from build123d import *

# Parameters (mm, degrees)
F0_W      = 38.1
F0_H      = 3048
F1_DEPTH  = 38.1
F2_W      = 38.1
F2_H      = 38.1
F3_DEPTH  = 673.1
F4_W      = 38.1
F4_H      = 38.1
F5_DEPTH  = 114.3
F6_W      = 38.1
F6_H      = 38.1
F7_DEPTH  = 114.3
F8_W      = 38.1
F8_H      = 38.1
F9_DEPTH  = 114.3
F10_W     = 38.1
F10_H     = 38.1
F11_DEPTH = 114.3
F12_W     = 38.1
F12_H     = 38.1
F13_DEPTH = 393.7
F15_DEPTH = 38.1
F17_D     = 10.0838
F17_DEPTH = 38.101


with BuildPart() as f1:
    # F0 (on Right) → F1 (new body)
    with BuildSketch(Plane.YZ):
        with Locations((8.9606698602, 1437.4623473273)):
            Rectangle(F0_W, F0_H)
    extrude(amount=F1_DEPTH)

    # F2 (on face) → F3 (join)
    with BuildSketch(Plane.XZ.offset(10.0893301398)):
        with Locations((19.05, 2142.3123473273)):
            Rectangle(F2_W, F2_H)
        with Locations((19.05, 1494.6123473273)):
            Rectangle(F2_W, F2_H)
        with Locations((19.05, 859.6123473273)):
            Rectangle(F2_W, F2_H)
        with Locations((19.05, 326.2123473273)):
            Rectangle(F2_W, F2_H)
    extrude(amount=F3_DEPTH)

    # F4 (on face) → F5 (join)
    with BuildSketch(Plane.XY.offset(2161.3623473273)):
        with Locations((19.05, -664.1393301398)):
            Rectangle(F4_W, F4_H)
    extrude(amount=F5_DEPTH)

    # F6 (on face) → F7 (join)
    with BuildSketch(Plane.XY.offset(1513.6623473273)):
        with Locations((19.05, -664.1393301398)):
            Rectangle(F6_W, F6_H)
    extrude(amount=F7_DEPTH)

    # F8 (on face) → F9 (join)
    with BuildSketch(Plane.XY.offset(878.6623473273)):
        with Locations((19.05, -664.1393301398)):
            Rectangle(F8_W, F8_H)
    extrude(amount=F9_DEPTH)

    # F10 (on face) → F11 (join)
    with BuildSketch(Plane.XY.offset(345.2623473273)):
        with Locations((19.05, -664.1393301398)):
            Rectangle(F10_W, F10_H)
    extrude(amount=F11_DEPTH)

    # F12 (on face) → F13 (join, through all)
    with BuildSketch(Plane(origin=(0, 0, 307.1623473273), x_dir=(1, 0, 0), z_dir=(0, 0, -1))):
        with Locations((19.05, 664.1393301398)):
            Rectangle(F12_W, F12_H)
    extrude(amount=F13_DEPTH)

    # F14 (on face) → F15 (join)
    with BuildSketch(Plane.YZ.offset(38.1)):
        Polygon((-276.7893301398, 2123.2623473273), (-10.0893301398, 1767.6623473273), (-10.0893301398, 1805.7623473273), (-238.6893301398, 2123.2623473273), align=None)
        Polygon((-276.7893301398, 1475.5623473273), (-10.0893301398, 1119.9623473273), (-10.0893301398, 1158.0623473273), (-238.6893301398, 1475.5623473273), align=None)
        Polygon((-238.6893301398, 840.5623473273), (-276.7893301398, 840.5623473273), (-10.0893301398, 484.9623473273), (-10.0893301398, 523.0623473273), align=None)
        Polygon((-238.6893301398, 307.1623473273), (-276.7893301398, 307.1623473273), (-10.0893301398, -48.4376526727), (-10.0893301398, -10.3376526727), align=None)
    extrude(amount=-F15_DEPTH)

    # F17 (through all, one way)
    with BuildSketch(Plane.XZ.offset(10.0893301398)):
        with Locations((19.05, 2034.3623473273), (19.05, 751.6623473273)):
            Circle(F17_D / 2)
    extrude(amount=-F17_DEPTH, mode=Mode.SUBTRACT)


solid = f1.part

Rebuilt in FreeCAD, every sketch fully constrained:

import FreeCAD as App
import Part
import Sketcher
from FreeCAD import Vector
Q = App.Units.Quantity

doc = App.newDocument("Part")
body = doc.addObject("PartDesign::Body", "Body")

# Sketch on YZ plane
sketch1 = body.newObject("Sketcher::SketchObject", "Sketch")
sketch1.AttachmentSupport = (doc.getObject("YZ_Plane"), [""])
sketch1.MapMode = "FlatFace"
sketch1.addGeometry([
    Part.LineSegment(Vector(-10.08933, 2961.462347, 0), Vector(-10.08933, -86.537653, 0)),
    Part.LineSegment(Vector(-10.08933, -86.537653, 0), Vector(28.01067, -86.537653, 0)),
    Part.LineSegment(Vector(28.01067, -86.537653, 0), Vector(28.01067, 2961.462347, 0)),
    Part.LineSegment(Vector(28.01067, 2961.462347, 0), Vector(-10.08933, 2961.462347, 0)),
], False)
sketch1.addConstraint([
    Sketcher.Constraint("Coincident", 0, 2, 1, 1),
    Sketcher.Constraint("Coincident", 1, 2, 2, 1),
    Sketcher.Constraint("Coincident", 2, 2, 3, 1),
    Sketcher.Constraint("Coincident", 3, 2, 0, 1),
    Sketcher.Constraint("Vertical", 0),
    Sketcher.Constraint("Horizontal", 1),
    Sketcher.Constraint("Vertical", 2),
    Sketcher.Constraint("Horizontal", 3),
    Sketcher.Constraint("DistanceY", 0, 2, 0, 1, Q("120 in")),
    Sketcher.Constraint("DistanceX", 1, 1, 1, 2, Q("1.5 in")),
    Sketcher.Constraint("DistanceX", 0, 2, -1, 1, 10.08933),
    Sketcher.Constraint("DistanceY", 0, 2, -1, 1, 86.537653),
])
pad1 = body.newObject("PartDesign::Pad", "Pad")
pad1.Profile = sketch1
pad1.Length = Q("1.5 in")

# Sketch on XZ plane
sketch2 = body.newObject("Sketcher::SketchObject", "Sketch001")
sketch2.AttachmentSupport = (doc.getObject("XZ_Plane"), [""])
sketch2.MapMode = "FlatFace"
sketch2.AttachmentOffset = App.Placement(Vector(0, 0, 10.08933), App.Rotation())
sketch2.addGeometry([
    Part.LineSegment(Vector(0, 2161.362347, 0), Vector(0, 2123.262347, 0)),  # 0
    Part.LineSegment(Vector(0, 2123.262347, 0), Vector(38.1, 2123.262347, 0)),  # 1
    Part.LineSegment(Vector(38.1, 2123.262347, 0), Vector(38.1, 2161.362347, 0)),  # 2
    Part.LineSegment(Vector(38.1, 2161.362347, 0), Vector(0, 2161.362347, 0)),  # 3
    Part.LineSegment(Vector(0, 1513.662347, 0), Vector(0, 1475.562347, 0)),  # 4
    Part.LineSegment(Vector(0, 1475.562347, 0), Vector(38.1, 1475.562347, 0)),  # 5
    Part.LineSegment(Vector(38.1, 1475.562347, 0), Vector(38.1, 1513.662347, 0)),  # 6
    Part.LineSegment(Vector(38.1, 1513.662347, 0), Vector(0, 1513.662347, 0)),  # 7
    Part.LineSegment(Vector(0, 878.662347, 0), Vector(0, 840.562347, 0)),  # 8
    Part.LineSegment(Vector(0, 840.562347, 0), Vector(38.1, 840.562347, 0)),  # 9
    Part.LineSegment(Vector(38.1, 840.562347, 0), Vector(38.1, 878.662347, 0)),  # 10
    Part.LineSegment(Vector(38.1, 878.662347, 0), Vector(0, 878.662347, 0)),  # 11
    Part.LineSegment(Vector(0, 345.262347, 0), Vector(0, 307.162347, 0)),  # 12
    Part.LineSegment(Vector(0, 307.162347, 0), Vector(38.1, 307.162347, 0)),  # 13
    Part.LineSegment(Vector(38.1, 307.162347, 0), Vector(38.1, 345.262347, 0)),  # 14
    Part.LineSegment(Vector(38.1, 345.262347, 0), Vector(0, 345.262347, 0)),  # 15
], False)
sketch2.addConstraint([
    Sketcher.Constraint("Coincident", 0, 2, 1, 1),
    Sketcher.Constraint("Coincident", 1, 2, 2, 1),
    Sketcher.Constraint("Coincident", 2, 2, 3, 1),
    Sketcher.Constraint("Coincident", 3, 2, 0, 1),
    Sketcher.Constraint("Coincident", 4, 2, 5, 1),
    Sketcher.Constraint("Coincident", 5, 2, 6, 1),
    Sketcher.Constraint("Coincident", 6, 2, 7, 1),
    Sketcher.Constraint("Coincident", 7, 2, 4, 1),
    Sketcher.Constraint("Coincident", 8, 2, 9, 1),
    Sketcher.Constraint("Coincident", 9, 2, 10, 1),
    Sketcher.Constraint("Coincident", 10, 2, 11, 1),
    Sketcher.Constraint("Coincident", 11, 2, 8, 1),
    Sketcher.Constraint("Coincident", 12, 2, 13, 1),
    Sketcher.Constraint("Coincident", 13, 2, 14, 1),
    Sketcher.Constraint("Coincident", 14, 2, 15, 1),
    Sketcher.Constraint("Coincident", 15, 2, 12, 1),
    Sketcher.Constraint("Vertical", 0),
    Sketcher.Constraint("Horizontal", 1),
    Sketcher.Constraint("Vertical", 2),
    Sketcher.Constraint("Horizontal", 3),
    Sketcher.Constraint("Vertical", 4),
    Sketcher.Constraint("Horizontal", 5),
    Sketcher.Constraint("Vertical", 6),
    Sketcher.Constraint("Horizontal", 7),
    Sketcher.Constraint("Vertical", 8),
    Sketcher.Constraint("Horizontal", 9),
    Sketcher.Constraint("Vertical", 10),
    Sketcher.Constraint("Horizontal", 11),
    Sketcher.Constraint("Vertical", 12),
    Sketcher.Constraint("Horizontal", 13),
    Sketcher.Constraint("Vertical", 14),
    Sketcher.Constraint("Horizontal", 15),
    Sketcher.Constraint("PointOnObject", 0, 2, -2),
    Sketcher.Constraint("PointOnObject", 4, 2, -2),
    Sketcher.Constraint("PointOnObject", 8, 2, -2),
    Sketcher.Constraint("PointOnObject", 12, 2, -2),
    Sketcher.Constraint("Vertical", 2, 2, 5, 2),
    Sketcher.Constraint("Vertical", 6, 2, 9, 2),
    Sketcher.Constraint("Vertical", 10, 2, 13, 2),
    Sketcher.Constraint("Equal", 15, 0),
    Sketcher.Constraint("Equal", 2, 4),
    Sketcher.Constraint("Equal", 6, 8),
    Sketcher.Constraint("Equal", 10, 12),
    Sketcher.Constraint("DistanceX", 1, 1, 1, 2, Q("1.5 in")),
    Sketcher.Constraint("DistanceY", 4, 2, 3, 2, Q("27 in")),
    Sketcher.Constraint("DistanceY", 8, 2, 4, 2, Q("25 in")),
    Sketcher.Constraint("DistanceY", 12, 2, 8, 2, Q("21 in")),
    Sketcher.Constraint("DistanceY", -1, 1, 0, 2, 2123.262347),
])
pad2 = body.newObject("PartDesign::Pad", "Pad001")
pad2.Profile = sketch2
pad2.Length = Q("26.5 in")

# Sketch on XY plane
sketch3 = body.newObject("Sketcher::SketchObject", "Sketch002")
sketch3.AttachmentSupport = (doc.getObject("XY_Plane"), [""])
sketch3.MapMode = "FlatFace"
sketch3.AttachmentOffset = App.Placement(Vector(0, 0, 2161.362347), App.Rotation())
sketch3.addGeometry([
    Part.LineSegment(Vector(0, -645.08933, 0), Vector(0, -683.18933, 0)),
    Part.LineSegment(Vector(0, -683.18933, 0), Vector(38.1, -683.18933, 0)),
    Part.LineSegment(Vector(38.1, -683.18933, 0), Vector(38.1, -645.08933, 0)),
    Part.LineSegment(Vector(38.1, -645.08933, 0), Vector(0, -645.08933, 0)),
], False)
sketch3.addConstraint([
    Sketcher.Constraint("Coincident", 0, 2, 1, 1),
    Sketcher.Constraint("Coincident", 1, 2, 2, 1),
    Sketcher.Constraint("Coincident", 2, 2, 3, 1),
    Sketcher.Constraint("Coincident", 3, 2, 0, 1),
    Sketcher.Constraint("Vertical", 0),
    Sketcher.Constraint("Horizontal", 1),
    Sketcher.Constraint("Vertical", 2),
    Sketcher.Constraint("Horizontal", 3),
    Sketcher.Constraint("PointOnObject", 0, 2, -2),
    Sketcher.Constraint("Equal", 3, 0),
    Sketcher.Constraint("DistanceX", 1, 1, 1, 2, Q("1.5 in")),
    Sketcher.Constraint("DistanceY", 0, 2, -1, 1, 683.18933),
])
pad3 = body.newObject("PartDesign::Pad", "Pad002")
pad3.Profile = sketch3
pad3.Length = Q("4.5 in")

# Sketch on XY plane
sketch4 = body.newObject("Sketcher::SketchObject", "Sketch003")
sketch4.AttachmentSupport = (doc.getObject("XY_Plane"), [""])
sketch4.MapMode = "FlatFace"
sketch4.AttachmentOffset = App.Placement(Vector(0, 0, 1513.662347), App.Rotation())
sketch4.addGeometry([
    Part.LineSegment(Vector(0, -645.08933, 0), Vector(0, -683.18933, 0)),
    Part.LineSegment(Vector(0, -683.18933, 0), Vector(38.1, -683.18933, 0)),
    Part.LineSegment(Vector(38.1, -683.18933, 0), Vector(38.1, -645.08933, 0)),
    Part.LineSegment(Vector(38.1, -645.08933, 0), Vector(0, -645.08933, 0)),
], False)
sketch4.addConstraint([
    Sketcher.Constraint("Coincident", 0, 2, 1, 1),
    Sketcher.Constraint("Coincident", 1, 2, 2, 1),
    Sketcher.Constraint("Coincident", 2, 2, 3, 1),
    Sketcher.Constraint("Coincident", 3, 2, 0, 1),
    Sketcher.Constraint("Vertical", 0),
    Sketcher.Constraint("Horizontal", 1),
    Sketcher.Constraint("Vertical", 2),
    Sketcher.Constraint("Horizontal", 3),
    Sketcher.Constraint("PointOnObject", 0, 2, -2),
    Sketcher.Constraint("Equal", 3, 0),
    Sketcher.Constraint("DistanceX", 1, 1, 1, 2, Q("1.5 in")),
    Sketcher.Constraint("DistanceY", 0, 2, -1, 1, 683.18933),
])
pad4 = body.newObject("PartDesign::Pad", "Pad003")
pad4.Profile = sketch4
pad4.Length = Q("4.5 in")

# Sketch on XY plane
sketch5 = body.newObject("Sketcher::SketchObject", "Sketch004")
sketch5.AttachmentSupport = (doc.getObject("XY_Plane"), [""])
sketch5.MapMode = "FlatFace"
sketch5.AttachmentOffset = App.Placement(Vector(0, 0, 878.662347), App.Rotation())
sketch5.addGeometry([
    Part.LineSegment(Vector(0, -645.08933, 0), Vector(0, -683.18933, 0)),
    Part.LineSegment(Vector(0, -683.18933, 0), Vector(38.1, -683.18933, 0)),
    Part.LineSegment(Vector(38.1, -683.18933, 0), Vector(38.1, -645.08933, 0)),
    Part.LineSegment(Vector(38.1, -645.08933, 0), Vector(0, -645.08933, 0)),
], False)
sketch5.addConstraint([
    Sketcher.Constraint("Coincident", 0, 2, 1, 1),
    Sketcher.Constraint("Coincident", 1, 2, 2, 1),
    Sketcher.Constraint("Coincident", 2, 2, 3, 1),
    Sketcher.Constraint("Coincident", 3, 2, 0, 1),
    Sketcher.Constraint("Vertical", 0),
    Sketcher.Constraint("Horizontal", 1),
    Sketcher.Constraint("Vertical", 2),
    Sketcher.Constraint("Horizontal", 3),
    Sketcher.Constraint("PointOnObject", 0, 2, -2),
    Sketcher.Constraint("Equal", 3, 0),
    Sketcher.Constraint("DistanceX", 1, 1, 1, 2, Q("1.5 in")),
    Sketcher.Constraint("DistanceY", 0, 2, -1, 1, 683.18933),
])
pad5 = body.newObject("PartDesign::Pad", "Pad004")
pad5.Profile = sketch5
pad5.Length = Q("4.5 in")

# Sketch on XY plane
sketch6 = body.newObject("Sketcher::SketchObject", "Sketch005")
sketch6.AttachmentSupport = (doc.getObject("XY_Plane"), [""])
sketch6.MapMode = "FlatFace"
sketch6.AttachmentOffset = App.Placement(Vector(0, 0, 345.262347), App.Rotation())
sketch6.addGeometry([
    Part.LineSegment(Vector(0, -645.08933, 0), Vector(0, -683.18933, 0)),
    Part.LineSegment(Vector(0, -683.18933, 0), Vector(38.1, -683.18933, 0)),
    Part.LineSegment(Vector(38.1, -683.18933, 0), Vector(38.1, -645.08933, 0)),
    Part.LineSegment(Vector(38.1, -645.08933, 0), Vector(0, -645.08933, 0)),
], False)
sketch6.addConstraint([
    Sketcher.Constraint("Coincident", 0, 2, 1, 1),
    Sketcher.Constraint("Coincident", 1, 2, 2, 1),
    Sketcher.Constraint("Coincident", 2, 2, 3, 1),
    Sketcher.Constraint("Coincident", 3, 2, 0, 1),
    Sketcher.Constraint("Vertical", 0),
    Sketcher.Constraint("Horizontal", 1),
    Sketcher.Constraint("Vertical", 2),
    Sketcher.Constraint("Horizontal", 3),
    Sketcher.Constraint("PointOnObject", 0, 2, -2),
    Sketcher.Constraint("Equal", 3, 0),
    Sketcher.Constraint("DistanceX", 1, 1, 1, 2, Q("1.5 in")),
    Sketcher.Constraint("DistanceY", 0, 2, -1, 1, 683.18933),
])
pad6 = body.newObject("PartDesign::Pad", "Pad005")
pad6.Profile = sketch6
pad6.Length = Q("4.5 in")

# Sketch on XY plane
sketch7 = body.newObject("Sketcher::SketchObject", "Sketch006")
sketch7.AttachmentSupport = (doc.getObject("XY_Plane"), [""])
sketch7.MapMode = "FlatFace"
sketch7.AttachmentOffset = App.Placement(Vector(0, 0, 307.162347), App.Rotation())
sketch7.addGeometry([
    Part.LineSegment(Vector(0, -683.18933, 0), Vector(0, -645.08933, 0)),
    Part.LineSegment(Vector(0, -645.08933, 0), Vector(38.1, -645.08933, 0)),
    Part.LineSegment(Vector(38.1, -645.08933, 0), Vector(38.1, -683.18933, 0)),
    Part.LineSegment(Vector(38.1, -683.18933, 0), Vector(0, -683.18933, 0)),
], False)
sketch7.addConstraint([
    Sketcher.Constraint("Coincident", 0, 2, 1, 1),
    Sketcher.Constraint("Coincident", 1, 2, 2, 1),
    Sketcher.Constraint("Coincident", 2, 2, 3, 1),
    Sketcher.Constraint("Coincident", 3, 2, 0, 1),
    Sketcher.Constraint("Vertical", 0),
    Sketcher.Constraint("Horizontal", 1),
    Sketcher.Constraint("Vertical", 2),
    Sketcher.Constraint("Horizontal", 3),
    Sketcher.Constraint("PointOnObject", 0, 2, -2),
    Sketcher.Constraint("Equal", 3, 0),
    Sketcher.Constraint("DistanceX", 1, 1, 1, 2, Q("1.5 in")),
    Sketcher.Constraint("DistanceY", 0, 2, -1, 1, 645.08933),
])
pad7 = body.newObject("PartDesign::Pad", "Pad006")
pad7.Profile = sketch7
pad7.Length = Q("15.5 in")
pad7.Reversed = True

# Sketch on YZ plane
sketch8 = body.newObject("Sketcher::SketchObject", "Sketch007")
sketch8.AttachmentSupport = (doc.getObject("YZ_Plane"), [""])
sketch8.MapMode = "FlatFace"
sketch8.AttachmentOffset = App.Placement(Vector(0, 0, 1.5 * 25.4), App.Rotation())
sketch8.addGeometry([
    Part.LineSegment(Vector(-276.78933, 2123.262347, 0), Vector(-10.08933, 1767.662347, 0)),  # 0
    Part.LineSegment(Vector(-10.08933, 1767.662347, 0), Vector(-10.08933, 1805.762347, 0)),  # 1
    Part.LineSegment(Vector(-10.08933, 1805.762347, 0), Vector(-238.68933, 2123.262347, 0)),  # 2
    Part.LineSegment(Vector(-238.68933, 2123.262347, 0), Vector(-276.78933, 2123.262347, 0)),  # 3
    Part.LineSegment(Vector(-276.78933, 1475.562347, 0), Vector(-10.08933, 1119.962347, 0)),  # 4
    Part.LineSegment(Vector(-10.08933, 1119.962347, 0), Vector(-10.08933, 1158.062347, 0)),  # 5
    Part.LineSegment(Vector(-10.08933, 1158.062347, 0), Vector(-238.68933, 1475.562347, 0)),  # 6
    Part.LineSegment(Vector(-238.68933, 1475.562347, 0), Vector(-276.78933, 1475.562347, 0)),  # 7
    Part.LineSegment(Vector(-238.68933, 840.562347, 0), Vector(-276.78933, 840.562347, 0)),  # 8
    Part.LineSegment(Vector(-276.78933, 840.562347, 0), Vector(-10.08933, 484.962347, 0)),  # 9
    Part.LineSegment(Vector(-10.08933, 484.962347, 0), Vector(-10.08933, 523.062347, 0)),  # 10
    Part.LineSegment(Vector(-10.08933, 523.062347, 0), Vector(-238.68933, 840.562347, 0)),  # 11
    Part.LineSegment(Vector(-238.68933, 307.162347, 0), Vector(-276.78933, 307.162347, 0)),  # 12
    Part.LineSegment(Vector(-276.78933, 307.162347, 0), Vector(-10.08933, -48.437653, 0)),  # 13
    Part.LineSegment(Vector(-10.08933, -48.437653, 0), Vector(-10.08933, -10.337653, 0)),  # 14
    Part.LineSegment(Vector(-10.08933, -10.337653, 0), Vector(-238.68933, 307.162347, 0)),  # 15
], False)
sketch8.addConstraint([
    Sketcher.Constraint("Coincident", 0, 2, 1, 1),
    Sketcher.Constraint("Coincident", 1, 2, 2, 1),
    Sketcher.Constraint("Coincident", 2, 2, 3, 1),
    Sketcher.Constraint("Coincident", 3, 2, 0, 1),
    Sketcher.Constraint("Coincident", 4, 2, 5, 1),
    Sketcher.Constraint("Coincident", 5, 2, 6, 1),
    Sketcher.Constraint("Coincident", 6, 2, 7, 1),
    Sketcher.Constraint("Coincident", 7, 2, 4, 1),
    Sketcher.Constraint("Coincident", 8, 2, 9, 1),
    Sketcher.Constraint("Coincident", 9, 2, 10, 1),
    Sketcher.Constraint("Coincident", 10, 2, 11, 1),
    Sketcher.Constraint("Coincident", 11, 2, 8, 1),
    Sketcher.Constraint("Coincident", 12, 2, 13, 1),
    Sketcher.Constraint("Coincident", 13, 2, 14, 1),
    Sketcher.Constraint("Coincident", 14, 2, 15, 1),
    Sketcher.Constraint("Coincident", 15, 2, 12, 1),
    Sketcher.Constraint("Vertical", 1),
    Sketcher.Constraint("Horizontal", 3),
    Sketcher.Constraint("Vertical", 5),
    Sketcher.Constraint("Horizontal", 7),
    Sketcher.Constraint("Horizontal", 8),
    Sketcher.Constraint("Vertical", 10),
    Sketcher.Constraint("Horizontal", 12),
    Sketcher.Constraint("Vertical", 14),
    Sketcher.Constraint("Parallel", 0, 4),
    Sketcher.Constraint("Parallel", 2, 6),
    Sketcher.Constraint("Parallel", 4, 9),
    Sketcher.Constraint("Parallel", 6, 11),
    Sketcher.Constraint("Parallel", 9, 13),
    Sketcher.Constraint("Parallel", 11, 15),
    Sketcher.Constraint("Vertical", 1, 2, 4, 2),
    Sketcher.Constraint("Vertical", 2, 2, 6, 2),
    Sketcher.Constraint("Vertical", 3, 2, 7, 2),
    Sketcher.Constraint("Vertical", 7, 2, 8, 2),
    Sketcher.Constraint("Vertical", 5, 2, 9, 2),
    Sketcher.Constraint("Vertical", 6, 2, 11, 2),
    Sketcher.Constraint("Vertical", 8, 2, 12, 2),
    Sketcher.Constraint("Vertical", 10, 2, 13, 2),
    Sketcher.Constraint("Vertical", 11, 2, 15, 2),
    Sketcher.Constraint("Equal", 12, 1),
    Sketcher.Constraint("DistanceX", 3, 2, 3, 1, Q("1.5 in")),
    Sketcher.Constraint("DistanceX", 2, 2, 1, 2, Q("9 in")),
    Sketcher.Constraint("DistanceY", 0, 2, 2, 2, Q("14 in")),
    Sketcher.Constraint("DistanceY", 4, 2, 1, 2, Q("27 in")),
    Sketcher.Constraint("DistanceY", 8, 2, 4, 2, Q("11 in")),
    Sketcher.Constraint("DistanceY", 12, 2, 9, 2, Q("7 in")),
    Sketcher.Constraint("DistanceX", 0, 2, -1, 1, 10.08933),
    Sketcher.Constraint("DistanceY", -1, 1, 0, 2, 1767.662347),
])
pad8 = body.newObject("PartDesign::Pad", "Pad007")
pad8.Profile = sketch8
pad8.Length = Q("1.5 in")
pad8.Reversed = True

# Sketch on XZ plane
sketch9 = body.newObject("Sketcher::SketchObject", "Sketch008")
sketch9.AttachmentSupport = (doc.getObject("XZ_Plane"), [""])
sketch9.MapMode = "FlatFace"
sketch9.AttachmentOffset = App.Placement(Vector(0, 0, 10.08933), App.Rotation())
sketch9.addGeometry([
    Part.Circle(Vector(19.05, 751.662347, 0), Vector(0, 0, 1), 5.0419),
    Part.Circle(Vector(19.05, 2034.362347, 0), Vector(0, 0, 1), 5.0419),
], False)
sketch9.addConstraint([
    Sketcher.Constraint("Equal", 0, 1),
    Sketcher.Constraint("Vertical", 0, 3, 1, 3),
    Sketcher.Constraint("Diameter", 0, Q("0.397 in")),
    Sketcher.Constraint("DistanceY", 0, 3, 1, 3, Q("50.5 in")),
    Sketcher.Constraint("DistanceX", -1, 1, 0, 3, Q("0.75 in")),
    Sketcher.Constraint("DistanceY", -1, 1, 0, 3, 751.662347),
])
pocket1 = body.newObject("PartDesign::Pocket", "Pocket")
pocket1.Profile = sketch9
pocket1.Type = "ThroughAll"

doc.recompute()
